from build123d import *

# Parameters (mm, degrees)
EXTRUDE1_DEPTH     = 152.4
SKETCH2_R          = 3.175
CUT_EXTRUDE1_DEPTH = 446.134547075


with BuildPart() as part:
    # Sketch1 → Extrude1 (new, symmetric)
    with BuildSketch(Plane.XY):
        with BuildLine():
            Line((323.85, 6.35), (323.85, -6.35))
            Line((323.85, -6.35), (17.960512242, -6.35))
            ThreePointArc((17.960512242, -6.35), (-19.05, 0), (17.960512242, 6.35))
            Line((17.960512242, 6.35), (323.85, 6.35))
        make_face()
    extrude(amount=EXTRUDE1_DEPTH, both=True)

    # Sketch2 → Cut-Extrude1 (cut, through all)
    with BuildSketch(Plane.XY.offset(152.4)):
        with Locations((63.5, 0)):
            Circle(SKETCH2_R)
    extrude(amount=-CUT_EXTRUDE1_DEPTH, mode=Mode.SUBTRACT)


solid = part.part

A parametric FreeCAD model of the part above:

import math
import FreeCAD as App
import Part
import Sketcher
from FreeCAD import Vector
Q = App.Units.Quantity

doc = App.newDocument("Part")
body = doc.addObject("PartDesign::Body", "Body")

sketch1 = body.newObject("Sketcher::SketchObject", "Sketch")
sketch1.AttachmentSupport = (doc.getObject("XY_Plane"), [""])
sketch1.MapMode = "FlatFace"
sketch1.addGeometry([
    Part.LineSegment(Vector(324, -6, 0), Vector(324, 6, 0)),
    Part.LineSegment(Vector(324, 6, 0), Vector(18, 6, 0)),
    Part.ArcOfCircle(Part.Circle(Vector(0, 0, 0), Vector(0, 0, 1), 19), math.radians(19), math.radians(341)),
    Part.LineSegment(Vector(18, -6, 0), Vector(324, -6, 0)),
], False)
sketch1.addConstraint([
    Sketcher.Constraint("Coincident", 0, 2, 1, 1),
    Sketcher.Constraint("Coincident", 1, 2, 2, 1),
    Sketcher.Constraint("Coincident", 2, 2, 3, 1),
    Sketcher.Constraint("Coincident", 3, 2, 0, 1),
    Sketcher.Constraint("Vertical", 0),
    Sketcher.Constraint("Horizontal", 1),
    Sketcher.Constraint("Horizontal", 3),
    Sketcher.Constraint("Coincident", 2, 3, -1, 1),
    Sketcher.Constraint("Vertical", 1, 2, 2, 2),
    Sketcher.Constraint("Radius", 2, Q("0.75 in")),
    Sketcher.Constraint("DistanceY", 0, 1, 0, 2, Q("0.5 in")),
    Sketcher.Constraint("DistanceX", -1, 1, 0, 2, Q("12.75 in")),
])
pad1 = body.newObject("PartDesign::Pad", "Pad")
pad1.Profile = sketch1
pad1.Length = Q("12 in")
pad1.Midplane = True

sketch2 = body.newObject("Sketcher::SketchObject", "Sketch001")
sketch2.AttachmentSupport = (doc.getObject("XY_Plane"), [""])
sketch2.MapMode = "FlatFace"
sketch2.AttachmentOffset = App.Placement(Vector(0, 0, 6 * 25.4), App.Rotation())
sketch2.addGeometry(Part.Circle(Vector(63.5, 0, 0), Vector(0, 0, 1), 3.2), False)
sketch2.addConstraint([
    Sketcher.Constraint("PointOnObject", 0, 3, -1),
    Sketcher.Constraint("Diameter", 0, Q("0.25 in")),
    Sketcher.Constraint("DistanceX", -1, 1, 0, 3, Q("2.5 in")),
])
pocket1 = body.newObject("PartDesign::Pocket", "Pocket")
pocket1.Profile = sketch2
pocket1.Type = "ThroughAll"

doc.recompute()
